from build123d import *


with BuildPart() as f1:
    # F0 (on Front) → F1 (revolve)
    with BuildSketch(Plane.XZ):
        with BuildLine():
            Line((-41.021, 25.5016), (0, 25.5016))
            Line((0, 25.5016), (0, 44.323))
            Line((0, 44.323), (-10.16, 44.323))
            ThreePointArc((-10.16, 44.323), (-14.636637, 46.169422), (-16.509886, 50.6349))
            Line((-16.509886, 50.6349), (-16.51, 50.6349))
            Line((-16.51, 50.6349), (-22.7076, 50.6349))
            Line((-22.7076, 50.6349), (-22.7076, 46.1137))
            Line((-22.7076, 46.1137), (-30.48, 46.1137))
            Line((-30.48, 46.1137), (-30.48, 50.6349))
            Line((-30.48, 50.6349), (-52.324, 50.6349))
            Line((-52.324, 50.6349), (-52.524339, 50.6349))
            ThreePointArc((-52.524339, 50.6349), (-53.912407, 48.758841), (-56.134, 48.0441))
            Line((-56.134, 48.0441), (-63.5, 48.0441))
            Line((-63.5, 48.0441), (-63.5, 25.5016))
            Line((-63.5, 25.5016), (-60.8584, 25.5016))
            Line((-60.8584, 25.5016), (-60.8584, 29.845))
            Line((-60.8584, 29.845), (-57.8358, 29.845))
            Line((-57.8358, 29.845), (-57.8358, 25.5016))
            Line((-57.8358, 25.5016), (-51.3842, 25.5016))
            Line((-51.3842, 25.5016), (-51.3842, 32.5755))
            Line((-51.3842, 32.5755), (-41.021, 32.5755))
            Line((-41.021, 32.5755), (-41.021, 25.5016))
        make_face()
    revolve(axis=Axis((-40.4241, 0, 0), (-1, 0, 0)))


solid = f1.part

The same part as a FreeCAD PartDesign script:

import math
import FreeCAD as App
import Part
import Sketcher

V = App.Vector
Q = App.Units.Quantity

doc = App.newDocument("Part")
body = doc.addObject("PartDesign::Body", "Body")

sketch1 = doc.addObject("Sketcher::SketchObject", "Sketch")
body.addObject(sketch1)
sketch1.AttachmentSupport = (doc.XZ_Plane, [""])
sketch1.MapMode = "FlatFace"
sketch1.addGeometry([
    Part.LineSegment(V(-41, 25.5, 0), V(0, 25.5, 0)),
    Part.LineSegment(V(0, 25.5, 0), V(0, 44.3, 0)),
    Part.LineSegment(V(0, 44.3, 0), V(-10.2, 44.3, 0)),
    Part.ArcOfCircle(Part.Circle(V(-10.2, 50.7, 0), V(0, 0, 1), 6.4), math.radians(-180), math.radians(-90)),
    Part.LineSegment(V(-16.5, 50.6, 0), V(-22.7, 50.6, 0)),
    Part.LineSegment(V(-22.7, 50.6, 0), V(-22.7, 46.1, 0)),
    Part.LineSegment(V(-22.7, 46.1, 0), V(-30.5, 46.1, 0)),
    Part.LineSegment(V(-30.5, 46.1, 0), V(-30.5, 50.6, 0)),
    Part.LineSegment(V(-30.5, 50.6, 0), V(-52.5, 50.6, 0)),
    Part.ArcOfCircle(Part.Circle(V(-56.1, 51.9, 0), V(0, 0, 1), 3.8), math.radians(-90), math.radians(-19)),
    Part.LineSegment(V(-56.1, 48, 0), V(-63.5, 48, 0)),
    Part.LineSegment(V(-63.5, 48, 0), V(-63.5, 25.5, 0)),
    Part.LineSegment(V(-63.5, 25.5, 0), V(-60.9, 25.5, 0)),
    Part.LineSegment(V(-60.9, 25.5, 0), V(-60.9, 29.8, 0)),
    Part.LineSegment(V(-60.9, 29.8, 0), V(-57.8, 29.8, 0)),
    Part.LineSegment(V(-57.8, 29.8, 0), V(-57.8, 25.5, 0)),
    Part.LineSegment(V(-57.8, 25.5, 0), V(-51.4, 25.5, 0)),
    Part.LineSegment(V(-51.4, 25.5, 0), V(-51.4, 32.6, 0)),
    Part.LineSegment(V(-51.4, 32.6, 0), V(-41, 32.6, 0)),
    Part.LineSegment(V(-41, 32.6, 0), V(-41, 25.5, 0)),
], False)
sketch1.addConstraint([
    Sketcher.Constraint("Coincident", 0, 2, 1, 1),
    Sketcher.Constraint("Coincident", 1, 2, 2, 1),
    Sketcher.Constraint("Tangent", 2, 2, 3, 2),
    Sketcher.Constraint("Coincident", 3, 1, 4, 1),
    Sketcher.Constraint("Coincident", 4, 2, 5, 1),
    Sketcher.Constraint("Coincident", 5, 2, 6, 1),
    Sketcher.Constraint("Coincident", 6, 2, 7, 1),
    Sketcher.Constraint("Coincident", 7, 2, 8, 1),
    Sketcher.Constraint("Coincident", 8, 2, 9, 2),
    Sketcher.Constraint("Tangent", 9, 1, 10, 1),
    Sketcher.Constraint("Coincident", 10, 2, 11, 1),
    Sketcher.Constraint("Coincident", 11, 2, 12, 1),
    Sketcher.Constraint("Coincident", 12, 2, 13, 1),
    Sketcher.Constraint("Coincident", 13, 2, 14, 1),
    Sketcher.Constraint("Coincident", 14, 2, 15, 1),
    Sketcher.Constraint("Coincident", 15, 2, 16, 1),
    Sketcher.Constraint("Coincident", 16, 2, 17, 1),
    Sketcher.Constraint("Coincident", 17, 2, 18, 1),
    Sketcher.Constraint("Coincident", 18, 2, 19, 1),
    Sketcher.Constraint("Coincident", 19, 2, 0, 1),
    Sketcher.Constraint("Horizontal", 0),
    Sketcher.Constraint("Vertical", 1),
    Sketcher.Constraint("Horizontal", 2),
    Sketcher.Constraint("Horizontal", 4),
    Sketcher.Constraint("Vertical", 5),
    Sketcher.Constraint("Horizontal", 6),
    Sketcher.Constraint("Vertical", 7),
    Sketcher.Constraint("Horizontal", 8),
    Sketcher.Constraint("Horizontal", 10),
    Sketcher.Constraint("Vertical", 11),
    Sketcher.Constraint("Horizontal", 12),
    Sketcher.Constraint("Vertical", 13),
    Sketcher.Constraint("Horizontal", 14),
    Sketcher.Constraint("Vertical", 15),
    Sketcher.Constraint("Horizontal", 16),
    Sketcher.Constraint("Vertical", 17),
    Sketcher.Constraint("Horizontal", 18),
    Sketcher.Constraint("Vertical", 19),
    Sketcher.Constraint("PointOnObject", 0, 2, -2),
    Sketcher.Constraint("Horizontal", 4, 2, 7, 2),
    Sketcher.Constraint("Horizontal", 0, 2, 11, 2),
    Sketcher.Constraint("Horizontal", 12, 2, 15, 2),
    Sketcher.Constraint("Radius", 3, Q("0.2500001 in")),
    Sketcher.Constraint("Radius", 9, Q("0.1499999 in")),
    Sketcher.Constraint("DistanceX", 2, 2, 2, 1, Q("0.4 in")),
    Sketcher.Constraint("DistanceX", 10, 2, 10, 1, Q("0.29 in")),
    Sketcher.Constraint("DistanceX", 6, 2, -1, 1, Q("1.2 in")),
    Sketcher.Constraint("DistanceX", 10, 2, -1, 1, Q("2.5 in")),
    Sketcher.Constraint("DistanceX", 0, 1, 0, 2, Q("1.615 in")),
    Sketcher.Constraint("DistanceX", 6, 2, 6, 1, Q("0.306 in")),
    Sketcher.Constraint("DistanceX", 12, 1, 12, 2, Q("0.104 in")),
    Sketcher.Constraint("DistanceX", 14, 1, 14, 2, Q("0.119 in")),
    Sketcher.Constraint("DistanceX", 16, 1, 16, 2, Q("0.254 in")),
    Sketcher.Constraint("DistanceY", 1, 1, 1, 2, Q("0.741 in")),
    Sketcher.Constraint("DistanceY", 5, 2, 5, 1, Q("0.178 in")),
    Sketcher.Constraint("DistanceY", 13, 1, 13, 2, Q("0.171 in")),
    Sketcher.Constraint("DistanceY", 11, 2, 11, 1, Q("0.8875 in")),
    Sketcher.Constraint("DistanceY", 17, 1, 17, 2, Q("0.2785 in")),
    Sketcher.Constraint("DistanceY", -1, 1, 3, 3, Q("1.9950001 in")),
    Sketcher.Constraint("DistanceY", 3, 1, 9, 3, Q("0.0479999 in")),
])
revolution = doc.addObject("PartDesign::Revolution", "Revolution")
body.addObject(revolution)
revolution.Profile = sketch1
revolution.ReferenceAxis = (sketch1, ["H_Axis"])
revolution.Angle = 360

doc.recompute()
